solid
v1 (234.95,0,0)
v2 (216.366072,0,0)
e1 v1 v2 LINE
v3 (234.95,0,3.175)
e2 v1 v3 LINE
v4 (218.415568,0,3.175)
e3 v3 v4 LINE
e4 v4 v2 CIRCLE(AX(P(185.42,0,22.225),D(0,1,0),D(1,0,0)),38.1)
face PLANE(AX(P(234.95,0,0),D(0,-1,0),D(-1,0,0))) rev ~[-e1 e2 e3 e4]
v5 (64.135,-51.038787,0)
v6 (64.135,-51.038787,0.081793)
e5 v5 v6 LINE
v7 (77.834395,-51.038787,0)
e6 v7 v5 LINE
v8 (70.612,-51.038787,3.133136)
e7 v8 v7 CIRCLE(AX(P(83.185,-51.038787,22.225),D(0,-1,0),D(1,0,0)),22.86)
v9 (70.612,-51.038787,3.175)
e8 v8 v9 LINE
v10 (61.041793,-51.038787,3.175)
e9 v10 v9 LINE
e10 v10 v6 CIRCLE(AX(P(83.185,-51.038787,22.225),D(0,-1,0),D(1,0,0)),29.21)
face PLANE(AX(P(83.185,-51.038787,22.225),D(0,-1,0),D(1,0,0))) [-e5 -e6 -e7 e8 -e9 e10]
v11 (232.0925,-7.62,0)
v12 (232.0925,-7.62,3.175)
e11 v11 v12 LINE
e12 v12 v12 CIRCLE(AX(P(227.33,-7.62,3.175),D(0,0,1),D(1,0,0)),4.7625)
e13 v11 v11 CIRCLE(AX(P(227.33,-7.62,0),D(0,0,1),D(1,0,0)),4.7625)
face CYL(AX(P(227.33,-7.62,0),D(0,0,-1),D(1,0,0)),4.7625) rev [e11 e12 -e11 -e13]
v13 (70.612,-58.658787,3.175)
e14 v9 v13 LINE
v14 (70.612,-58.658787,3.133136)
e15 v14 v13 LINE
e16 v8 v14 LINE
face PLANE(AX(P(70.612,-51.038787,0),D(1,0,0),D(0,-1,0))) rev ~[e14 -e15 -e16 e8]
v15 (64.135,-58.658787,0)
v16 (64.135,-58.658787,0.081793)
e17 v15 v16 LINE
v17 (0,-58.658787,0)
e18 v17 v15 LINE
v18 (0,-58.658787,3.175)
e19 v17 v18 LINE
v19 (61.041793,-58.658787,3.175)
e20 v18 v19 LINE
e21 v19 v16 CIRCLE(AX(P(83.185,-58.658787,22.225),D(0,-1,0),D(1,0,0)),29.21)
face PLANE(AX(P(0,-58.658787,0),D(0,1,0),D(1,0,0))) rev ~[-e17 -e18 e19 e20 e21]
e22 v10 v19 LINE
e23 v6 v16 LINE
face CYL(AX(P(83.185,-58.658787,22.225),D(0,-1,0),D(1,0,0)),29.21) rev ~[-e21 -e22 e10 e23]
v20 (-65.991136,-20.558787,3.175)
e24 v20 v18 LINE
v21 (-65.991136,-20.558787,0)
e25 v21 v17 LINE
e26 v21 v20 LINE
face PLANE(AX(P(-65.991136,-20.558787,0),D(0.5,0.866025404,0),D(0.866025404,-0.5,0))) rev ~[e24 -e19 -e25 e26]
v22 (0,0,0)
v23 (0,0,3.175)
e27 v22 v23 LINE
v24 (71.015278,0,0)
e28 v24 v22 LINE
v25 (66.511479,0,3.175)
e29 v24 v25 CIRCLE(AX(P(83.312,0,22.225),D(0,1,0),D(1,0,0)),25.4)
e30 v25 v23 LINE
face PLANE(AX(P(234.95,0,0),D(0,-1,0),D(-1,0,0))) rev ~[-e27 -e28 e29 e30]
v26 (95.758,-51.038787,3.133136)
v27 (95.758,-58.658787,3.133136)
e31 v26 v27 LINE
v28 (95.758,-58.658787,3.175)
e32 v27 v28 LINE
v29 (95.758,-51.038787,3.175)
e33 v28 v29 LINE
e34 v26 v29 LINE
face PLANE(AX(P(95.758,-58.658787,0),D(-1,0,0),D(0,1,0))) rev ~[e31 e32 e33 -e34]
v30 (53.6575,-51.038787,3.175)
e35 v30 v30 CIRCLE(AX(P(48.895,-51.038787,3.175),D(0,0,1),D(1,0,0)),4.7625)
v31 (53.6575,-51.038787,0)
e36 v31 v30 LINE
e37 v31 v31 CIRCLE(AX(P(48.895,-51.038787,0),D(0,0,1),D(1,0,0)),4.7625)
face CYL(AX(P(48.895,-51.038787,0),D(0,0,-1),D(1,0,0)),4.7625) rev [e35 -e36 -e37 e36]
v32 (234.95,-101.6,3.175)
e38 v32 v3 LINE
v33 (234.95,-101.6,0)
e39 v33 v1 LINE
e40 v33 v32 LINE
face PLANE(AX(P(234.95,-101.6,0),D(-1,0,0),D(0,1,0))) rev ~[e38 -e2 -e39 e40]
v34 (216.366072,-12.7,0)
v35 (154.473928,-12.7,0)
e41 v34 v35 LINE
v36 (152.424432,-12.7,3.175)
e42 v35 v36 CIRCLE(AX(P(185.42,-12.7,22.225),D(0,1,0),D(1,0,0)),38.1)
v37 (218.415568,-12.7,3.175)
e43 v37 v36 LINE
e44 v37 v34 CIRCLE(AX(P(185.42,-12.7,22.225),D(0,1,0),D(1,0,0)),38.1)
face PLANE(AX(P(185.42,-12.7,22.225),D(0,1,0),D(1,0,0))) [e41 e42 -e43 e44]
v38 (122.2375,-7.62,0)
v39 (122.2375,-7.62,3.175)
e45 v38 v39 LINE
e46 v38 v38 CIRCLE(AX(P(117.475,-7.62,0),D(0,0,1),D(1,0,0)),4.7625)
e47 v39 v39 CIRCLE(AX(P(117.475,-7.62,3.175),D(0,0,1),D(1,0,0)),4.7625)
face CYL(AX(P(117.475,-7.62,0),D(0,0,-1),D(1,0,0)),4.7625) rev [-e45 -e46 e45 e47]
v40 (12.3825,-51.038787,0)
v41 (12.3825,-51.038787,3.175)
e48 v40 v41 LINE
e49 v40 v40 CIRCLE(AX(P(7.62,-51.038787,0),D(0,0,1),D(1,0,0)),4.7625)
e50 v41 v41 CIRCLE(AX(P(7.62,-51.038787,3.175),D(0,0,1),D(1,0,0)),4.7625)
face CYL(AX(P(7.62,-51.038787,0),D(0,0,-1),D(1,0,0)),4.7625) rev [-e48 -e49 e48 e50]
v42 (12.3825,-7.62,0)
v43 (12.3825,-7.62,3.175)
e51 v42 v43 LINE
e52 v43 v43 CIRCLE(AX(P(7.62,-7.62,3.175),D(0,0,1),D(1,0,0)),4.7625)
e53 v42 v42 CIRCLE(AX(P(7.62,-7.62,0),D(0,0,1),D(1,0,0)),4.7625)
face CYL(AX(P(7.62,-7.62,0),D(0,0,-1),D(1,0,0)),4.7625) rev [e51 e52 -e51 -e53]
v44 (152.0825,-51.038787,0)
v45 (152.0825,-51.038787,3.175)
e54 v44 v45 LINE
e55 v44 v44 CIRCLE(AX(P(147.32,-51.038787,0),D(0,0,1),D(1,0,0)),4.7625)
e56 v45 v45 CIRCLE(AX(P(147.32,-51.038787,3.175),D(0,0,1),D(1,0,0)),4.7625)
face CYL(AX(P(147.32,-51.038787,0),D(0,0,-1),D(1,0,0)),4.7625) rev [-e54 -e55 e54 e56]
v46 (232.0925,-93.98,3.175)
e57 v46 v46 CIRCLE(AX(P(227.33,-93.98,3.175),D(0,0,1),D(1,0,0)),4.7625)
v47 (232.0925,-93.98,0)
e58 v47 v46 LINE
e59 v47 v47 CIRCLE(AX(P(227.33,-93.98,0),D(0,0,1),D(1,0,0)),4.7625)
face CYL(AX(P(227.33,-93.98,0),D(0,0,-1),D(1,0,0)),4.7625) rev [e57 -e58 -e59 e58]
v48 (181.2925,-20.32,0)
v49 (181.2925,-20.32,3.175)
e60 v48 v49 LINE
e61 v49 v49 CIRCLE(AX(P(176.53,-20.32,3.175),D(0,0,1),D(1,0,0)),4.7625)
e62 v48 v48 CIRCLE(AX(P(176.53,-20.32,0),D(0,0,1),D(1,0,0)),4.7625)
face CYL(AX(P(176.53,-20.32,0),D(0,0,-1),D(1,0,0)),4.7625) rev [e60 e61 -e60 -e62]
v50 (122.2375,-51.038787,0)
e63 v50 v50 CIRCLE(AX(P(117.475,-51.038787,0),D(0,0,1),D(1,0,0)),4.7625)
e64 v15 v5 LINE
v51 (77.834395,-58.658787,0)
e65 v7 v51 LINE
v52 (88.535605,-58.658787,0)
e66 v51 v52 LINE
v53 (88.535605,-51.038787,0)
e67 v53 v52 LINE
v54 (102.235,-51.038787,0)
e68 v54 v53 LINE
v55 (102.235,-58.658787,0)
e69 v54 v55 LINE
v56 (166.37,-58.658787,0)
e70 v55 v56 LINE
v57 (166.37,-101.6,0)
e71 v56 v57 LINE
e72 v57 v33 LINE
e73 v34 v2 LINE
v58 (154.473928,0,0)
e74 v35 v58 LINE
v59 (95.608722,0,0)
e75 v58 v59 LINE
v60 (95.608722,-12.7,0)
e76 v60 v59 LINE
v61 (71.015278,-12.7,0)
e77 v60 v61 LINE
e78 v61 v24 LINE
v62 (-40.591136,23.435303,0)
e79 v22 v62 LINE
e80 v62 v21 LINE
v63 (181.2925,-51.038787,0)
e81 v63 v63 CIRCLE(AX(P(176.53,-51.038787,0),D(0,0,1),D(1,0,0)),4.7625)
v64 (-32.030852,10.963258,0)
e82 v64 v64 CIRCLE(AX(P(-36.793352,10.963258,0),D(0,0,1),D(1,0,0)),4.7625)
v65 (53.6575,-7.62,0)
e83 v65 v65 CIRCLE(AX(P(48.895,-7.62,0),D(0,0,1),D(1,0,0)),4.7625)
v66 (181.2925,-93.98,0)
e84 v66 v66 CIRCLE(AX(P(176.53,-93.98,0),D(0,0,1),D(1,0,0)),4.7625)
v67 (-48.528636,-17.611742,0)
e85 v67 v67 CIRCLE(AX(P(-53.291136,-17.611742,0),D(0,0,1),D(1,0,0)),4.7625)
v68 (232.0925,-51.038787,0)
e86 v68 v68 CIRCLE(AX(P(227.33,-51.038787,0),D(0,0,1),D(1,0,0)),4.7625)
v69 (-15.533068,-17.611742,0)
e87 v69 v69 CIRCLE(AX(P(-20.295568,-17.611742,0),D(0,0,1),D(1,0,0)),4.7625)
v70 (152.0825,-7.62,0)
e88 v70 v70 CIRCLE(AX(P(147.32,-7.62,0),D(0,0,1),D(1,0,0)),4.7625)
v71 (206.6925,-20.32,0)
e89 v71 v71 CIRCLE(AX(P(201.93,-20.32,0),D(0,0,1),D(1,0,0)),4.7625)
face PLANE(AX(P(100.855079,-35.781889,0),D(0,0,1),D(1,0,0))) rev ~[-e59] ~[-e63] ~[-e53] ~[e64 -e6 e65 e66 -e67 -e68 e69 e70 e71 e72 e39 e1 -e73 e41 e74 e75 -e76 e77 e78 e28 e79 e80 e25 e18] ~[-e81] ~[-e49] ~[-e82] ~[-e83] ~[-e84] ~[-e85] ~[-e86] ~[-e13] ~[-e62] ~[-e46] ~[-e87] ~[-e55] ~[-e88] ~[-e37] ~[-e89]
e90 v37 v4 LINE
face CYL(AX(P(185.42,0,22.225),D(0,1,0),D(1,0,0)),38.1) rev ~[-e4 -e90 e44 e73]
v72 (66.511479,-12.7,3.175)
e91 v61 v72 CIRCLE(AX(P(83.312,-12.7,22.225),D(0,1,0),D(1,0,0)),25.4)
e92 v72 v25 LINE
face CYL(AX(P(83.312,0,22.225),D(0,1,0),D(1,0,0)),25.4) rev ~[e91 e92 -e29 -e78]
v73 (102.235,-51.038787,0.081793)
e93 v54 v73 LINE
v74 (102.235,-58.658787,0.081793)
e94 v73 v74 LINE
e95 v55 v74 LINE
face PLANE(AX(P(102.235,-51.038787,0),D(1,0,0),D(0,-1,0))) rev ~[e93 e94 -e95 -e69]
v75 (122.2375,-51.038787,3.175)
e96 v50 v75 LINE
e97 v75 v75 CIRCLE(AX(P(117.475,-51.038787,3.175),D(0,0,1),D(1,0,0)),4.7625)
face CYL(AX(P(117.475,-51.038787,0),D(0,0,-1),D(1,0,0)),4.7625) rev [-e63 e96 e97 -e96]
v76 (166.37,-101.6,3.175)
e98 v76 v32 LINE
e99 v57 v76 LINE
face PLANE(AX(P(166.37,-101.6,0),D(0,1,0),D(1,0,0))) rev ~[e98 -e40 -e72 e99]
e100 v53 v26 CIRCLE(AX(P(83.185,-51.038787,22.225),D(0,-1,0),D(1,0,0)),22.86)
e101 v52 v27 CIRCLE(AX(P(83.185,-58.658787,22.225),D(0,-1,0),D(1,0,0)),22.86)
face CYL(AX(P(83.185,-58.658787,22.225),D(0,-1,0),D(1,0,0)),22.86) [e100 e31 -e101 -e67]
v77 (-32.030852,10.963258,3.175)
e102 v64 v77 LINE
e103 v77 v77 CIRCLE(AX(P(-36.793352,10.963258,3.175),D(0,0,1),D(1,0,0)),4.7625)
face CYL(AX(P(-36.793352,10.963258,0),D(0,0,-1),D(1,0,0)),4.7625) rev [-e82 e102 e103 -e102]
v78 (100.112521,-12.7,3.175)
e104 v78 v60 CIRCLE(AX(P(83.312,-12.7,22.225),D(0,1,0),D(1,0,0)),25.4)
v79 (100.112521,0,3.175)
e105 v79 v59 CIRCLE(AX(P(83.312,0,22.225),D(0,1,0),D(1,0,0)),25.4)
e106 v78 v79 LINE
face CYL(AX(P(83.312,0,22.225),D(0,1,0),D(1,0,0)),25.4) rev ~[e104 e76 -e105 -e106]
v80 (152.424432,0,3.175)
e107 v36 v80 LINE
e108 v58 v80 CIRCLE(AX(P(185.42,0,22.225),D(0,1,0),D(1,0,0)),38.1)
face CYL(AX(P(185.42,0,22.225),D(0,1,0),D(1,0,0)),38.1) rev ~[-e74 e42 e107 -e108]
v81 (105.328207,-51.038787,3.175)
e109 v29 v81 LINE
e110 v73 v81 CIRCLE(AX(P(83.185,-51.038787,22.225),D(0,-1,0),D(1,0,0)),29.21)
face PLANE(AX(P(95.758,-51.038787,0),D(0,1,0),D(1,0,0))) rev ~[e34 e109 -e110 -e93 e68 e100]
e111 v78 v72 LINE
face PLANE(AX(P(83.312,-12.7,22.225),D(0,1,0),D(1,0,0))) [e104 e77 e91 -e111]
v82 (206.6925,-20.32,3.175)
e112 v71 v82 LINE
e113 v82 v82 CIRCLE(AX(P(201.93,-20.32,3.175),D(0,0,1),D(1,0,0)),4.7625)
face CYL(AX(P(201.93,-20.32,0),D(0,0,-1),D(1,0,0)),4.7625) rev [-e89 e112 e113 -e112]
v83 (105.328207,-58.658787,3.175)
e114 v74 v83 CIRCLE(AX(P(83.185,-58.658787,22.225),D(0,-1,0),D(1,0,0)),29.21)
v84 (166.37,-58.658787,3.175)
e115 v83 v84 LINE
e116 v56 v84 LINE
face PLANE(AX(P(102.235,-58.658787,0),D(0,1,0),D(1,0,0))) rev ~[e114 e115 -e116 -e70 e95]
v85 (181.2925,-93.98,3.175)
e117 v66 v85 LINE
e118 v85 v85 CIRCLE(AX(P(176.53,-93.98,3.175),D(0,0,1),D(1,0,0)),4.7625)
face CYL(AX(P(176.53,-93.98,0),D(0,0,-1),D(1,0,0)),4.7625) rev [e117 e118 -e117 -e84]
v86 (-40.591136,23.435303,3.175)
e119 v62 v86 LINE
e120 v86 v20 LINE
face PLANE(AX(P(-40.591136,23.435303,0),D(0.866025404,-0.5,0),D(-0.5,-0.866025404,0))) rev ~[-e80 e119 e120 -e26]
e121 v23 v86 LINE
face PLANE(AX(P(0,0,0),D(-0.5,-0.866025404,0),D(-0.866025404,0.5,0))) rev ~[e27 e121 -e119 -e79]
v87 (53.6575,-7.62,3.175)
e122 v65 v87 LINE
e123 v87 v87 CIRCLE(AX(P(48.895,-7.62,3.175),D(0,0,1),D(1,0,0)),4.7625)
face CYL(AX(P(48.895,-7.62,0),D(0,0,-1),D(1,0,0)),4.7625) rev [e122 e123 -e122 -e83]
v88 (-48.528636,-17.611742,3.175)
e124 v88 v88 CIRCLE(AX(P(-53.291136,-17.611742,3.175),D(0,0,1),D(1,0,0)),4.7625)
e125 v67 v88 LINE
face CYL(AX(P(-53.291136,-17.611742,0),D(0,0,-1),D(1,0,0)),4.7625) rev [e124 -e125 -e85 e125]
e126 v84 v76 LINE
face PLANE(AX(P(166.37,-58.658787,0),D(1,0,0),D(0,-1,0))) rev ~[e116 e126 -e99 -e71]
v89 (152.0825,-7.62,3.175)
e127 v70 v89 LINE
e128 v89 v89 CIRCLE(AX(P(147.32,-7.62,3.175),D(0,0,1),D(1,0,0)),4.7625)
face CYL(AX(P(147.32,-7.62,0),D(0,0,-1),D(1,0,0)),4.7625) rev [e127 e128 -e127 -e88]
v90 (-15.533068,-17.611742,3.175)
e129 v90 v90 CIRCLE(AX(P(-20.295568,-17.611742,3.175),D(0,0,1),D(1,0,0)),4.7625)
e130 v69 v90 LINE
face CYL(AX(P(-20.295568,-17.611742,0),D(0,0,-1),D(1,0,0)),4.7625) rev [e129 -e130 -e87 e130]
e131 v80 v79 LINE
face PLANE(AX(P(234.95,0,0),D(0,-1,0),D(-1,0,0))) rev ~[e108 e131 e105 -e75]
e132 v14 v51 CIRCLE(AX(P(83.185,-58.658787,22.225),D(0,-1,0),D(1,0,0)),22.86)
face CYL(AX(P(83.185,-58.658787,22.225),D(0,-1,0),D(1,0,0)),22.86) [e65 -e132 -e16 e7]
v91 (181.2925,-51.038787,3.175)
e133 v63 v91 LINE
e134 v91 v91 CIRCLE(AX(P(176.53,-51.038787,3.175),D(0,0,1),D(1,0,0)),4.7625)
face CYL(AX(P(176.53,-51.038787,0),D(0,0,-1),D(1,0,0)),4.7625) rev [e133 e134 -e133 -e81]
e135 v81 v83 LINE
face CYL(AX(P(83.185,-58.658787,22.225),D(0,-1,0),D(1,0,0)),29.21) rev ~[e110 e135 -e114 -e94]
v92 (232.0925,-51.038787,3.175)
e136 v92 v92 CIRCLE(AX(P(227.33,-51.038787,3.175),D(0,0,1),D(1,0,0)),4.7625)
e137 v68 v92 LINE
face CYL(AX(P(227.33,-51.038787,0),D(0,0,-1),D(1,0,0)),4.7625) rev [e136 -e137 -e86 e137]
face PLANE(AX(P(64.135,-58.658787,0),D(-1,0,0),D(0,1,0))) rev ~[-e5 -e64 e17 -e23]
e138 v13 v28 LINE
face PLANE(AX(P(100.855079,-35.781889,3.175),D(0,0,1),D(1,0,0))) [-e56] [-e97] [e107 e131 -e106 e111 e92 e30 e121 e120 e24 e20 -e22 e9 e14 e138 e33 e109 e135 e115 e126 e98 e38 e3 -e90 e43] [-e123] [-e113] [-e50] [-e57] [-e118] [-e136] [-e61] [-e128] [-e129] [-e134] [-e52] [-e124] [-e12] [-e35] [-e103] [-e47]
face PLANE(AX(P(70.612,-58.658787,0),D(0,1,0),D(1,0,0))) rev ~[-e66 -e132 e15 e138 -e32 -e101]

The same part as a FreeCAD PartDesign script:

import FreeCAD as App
import Part
import Sketcher
from FreeCAD import Vector
Q = App.Units.Quantity

doc = App.newDocument("Part")
body = doc.addObject("PartDesign::Body", "Body")

sketch1 = body.newObject("Sketcher::SketchObject", "Sketch")
sketch1.AttachmentSupport = (doc.getObject("XY_Plane"), [""])
sketch1.MapMode = "FlatFace"
sketch1.addGeometry([
    Part.LineSegment(Vector(0, 0, 0), Vector(-40.6, 23.4, 0)),
    Part.LineSegment(Vector(-40.6, 23.4, 0), Vector(-66, -20.6, 0)),
    Part.LineSegment(Vector(-66, -20.6, 0), Vector(0, -58.7, 0)),
    Part.LineSegment(Vector(0, -58.7, 0), Vector(64.1, -58.7, 0)),
    Part.LineSegment(Vector(64.1, -58.7, 0), Vector(64.1, -51, 0)),
    Part.LineSegment(Vector(64.1, -51, 0), Vector(70.6, -51, 0)),
    Part.LineSegment(Vector(70.6, -51, 0), Vector(70.6, -58.7, 0)),
    Part.LineSegment(Vector(70.6, -58.7, 0), Vector(95.8, -58.7, 0)),
    Part.LineSegment(Vector(95.8, -58.7, 0), Vector(95.8, -51, 0)),
    Part.LineSegment(Vector(95.8, -51, 0), Vector(102.2, -51, 0)),
    Part.LineSegment(Vector(102.2, -51, 0), Vector(102.2, -58.7, 0)),
    Part.LineSegment(Vector(102.2, -58.7, 0), Vector(166.4, -58.7, 0)),
    Part.LineSegment(Vector(166.4, -58.7, 0), Vector(166.4, -101.6, 0)),
    Part.LineSegment(Vector(166.4, -101.6, 0), Vector(234.9, -101.6, 0)),
    Part.LineSegment(Vector(234.9, -101.6, 0), Vector(234.9, 0, 0)),
    Part.LineSegment(Vector(234.9, 0, 0), Vector(0, 0, 0)),
    Part.Circle(Vector(7.6, -51, 0), Vector(0, 0, 1), 4.8),
    Part.Circle(Vector(48.9, -51, 0), Vector(0, 0, 1), 4.8),
    Part.Circle(Vector(176.5, -94, 0), Vector(0, 0, 1), 4.8),
    Part.Circle(Vector(227.3, -94, 0), Vector(0, 0, 1), 4.8),
    Part.Circle(Vector(117.5, -51, 0), Vector(0, 0, 1), 4.8),
    Part.Circle(Vector(147.3, -51, 0), Vector(0, 0, 1), 4.8),
    Part.Circle(Vector(176.5, -51, 0), Vector(0, 0, 1), 4.8),
    Part.Circle(Vector(227.3, -51, 0), Vector(0, 0, 1), 4.8),
    Part.Circle(Vector(-53.3, -17.6, 0), Vector(0, 0, 1), 4.8),
    Part.Circle(Vector(-20.3, -17.6, 0), Vector(0, 0, 1), 4.8),
    Part.Circle(Vector(7.6, -7.6, 0), Vector(0, 0, 1), 4.8),
    Part.Circle(Vector(-36.8, 11, 0), Vector(0, 0, 1), 4.8),
    Part.Circle(Vector(48.9, -7.6, 0), Vector(0, 0, 1), 4.8),
    Part.Circle(Vector(176.5, -20.3, 0), Vector(0, 0, 1), 4.8),
    Part.Circle(Vector(201.9, -20.3, 0), Vector(0, 0, 1), 4.8),
    Part.Circle(Vector(117.5, -7.6, 0), Vector(0, 0, 1), 4.8),
    Part.Circle(Vector(147.3, -7.6, 0), Vector(0, 0, 1), 4.8),
    Part.Circle(Vector(227.3, -7.6, 0), Vector(0, 0, 1), 4.8),
], False)
sketch1.addConstraint([
    Sketcher.Constraint("Coincident", 0, 2, 1, 1),
    Sketcher.Constraint("Coincident", 1, 2, 2, 1),
    Sketcher.Constraint("Coincident", 2, 2, 3, 1),
    Sketcher.Constraint("Coincident", 3, 2, 4, 1),
    Sketcher.Constraint("Coincident", 4, 2, 5, 1),
    Sketcher.Constraint("Coincident", 5, 2, 6, 1),
    Sketcher.Constraint("Coincident", 6, 2, 7, 1),
    Sketcher.Constraint("Coincident", 7, 2, 8, 1),
    Sketcher.Constraint("Coincident", 8, 2, 9, 1),
    Sketcher.Constraint("Coincident", 9, 2, 10, 1),
    Sketcher.Constraint("Coincident", 10, 2, 11, 1),
    Sketcher.Constraint("Coincident", 11, 2, 12, 1),
    Sketcher.Constraint("Coincident", 12, 2, 13, 1),
    Sketcher.Constraint("Coincident", 13, 2, 14, 1),
    Sketcher.Constraint("Coincident", 14, 2, 15, 1),
    Sketcher.Constraint("Coincident", 15, 2, 0, 1),
    Sketcher.Constraint("Horizontal", 3),
    Sketcher.Constraint("Vertical", 4),
    Sketcher.Constraint("Horizontal", 5),
    Sketcher.Constraint("Vertical", 6),
    Sketcher.Constraint("Horizontal", 7),
    Sketcher.Constraint("Vertical", 8),
    Sketcher.Constraint("Horizontal", 9),
    Sketcher.Constraint("Vertical", 10),
    Sketcher.Constraint("Horizontal", 11),
    Sketcher.Constraint("Vertical", 12),
    Sketcher.Constraint("Horizontal", 13),
    Sketcher.Constraint("Vertical", 14),
    Sketcher.Constraint("Horizontal", 15),
    Sketcher.Constraint("Coincident", 15, 2, -1, 1),
    Sketcher.Constraint("Equal", 16, 17),
    Sketcher.Constraint("Equal", 17, 18),
    Sketcher.Constraint("Equal", 18, 19),
    Sketcher.Constraint("Equal", 19, 20),
    Sketcher.Constraint("Equal", 20, 21),
    Sketcher.Constraint("Equal", 21, 22),
    Sketcher.Constraint("Equal", 22, 23),
    Sketcher.Constraint("Equal", 23, 24),
    Sketcher.Constraint("Equal", 24, 25),
    Sketcher.Constraint("Equal", 25, 26),
    Sketcher.Constraint("Equal", 26, 27),
    Sketcher.Constraint("Equal", 27, 28),
    Sketcher.Constraint("Equal", 28, 29),
    Sketcher.Constraint("Equal", 29, 30),
    Sketcher.Constraint("Equal", 30, 31),
    Sketcher.Constraint("Equal", 31, 32),
    Sketcher.Constraint("Equal", 32, 33),
    Sketcher.Constraint("PointOnObject", 2, 2, -2),
    Sketcher.Constraint("Perpendicular", 0, 1),
    Sketcher.Constraint("Perpendicular", 1, 2),
    Sketcher.Constraint("Horizontal", 16, 3, 17, 3),
    Sketcher.Constraint("Horizontal", 18, 3, 19, 3),
    Sketcher.Constraint("Horizontal", 17, 3, 20, 3),
    Sketcher.Constraint("Horizontal", 20, 3, 21, 3),
    Sketcher.Constraint("Horizontal", 21, 3, 22, 3),
    Sketcher.Constraint("Horizontal", 22, 3, 23, 3),
    Sketcher.Constraint("Horizontal", 24, 3, 25, 3),
    Sketcher.Constraint("Horizontal", 26, 3, 28, 3),
    Sketcher.Constraint("Horizontal", 29, 3, 30, 3),
    Sketcher.Constraint("Horizontal", 28, 3, 31, 3),
    Sketcher.Constraint("Horizontal", 31, 3, 32, 3),
    Sketcher.Constraint("Horizontal", 32, 3, 33, 3),
    Sketcher.Constraint("Horizontal", 23, 3, 4, 2),
    Sketcher.Constraint("Horizontal", 3, 2, 6, 2),
    Sketcher.Constraint("Horizontal", 5, 2, 8, 2),
    Sketcher.Constraint("Horizontal", 7, 2, 10, 2),
    Sketcher.Constraint("Vertical", 18, 3, 22, 3),
    Sketcher.Constraint("Vertical", 19, 3, 23, 3),
    Sketcher.Constraint("Vertical", 16, 3, 26, 3),
    Sketcher.Constraint("Vertical", 17, 3, 28, 3),
    Sketcher.Constraint("Vertical", 22, 3, 29, 3),
    Sketcher.Constraint("Vertical", 20, 3, 31, 3),
    Sketcher.Constraint("Vertical", 21, 3, 32, 3),
    Sketcher.Constraint("Vertical", 23, 3, 33, 3),
    Sketcher.Constraint("Equal", 5, 9),
    Sketcher.Constraint("Equal", 3, 11),
    Sketcher.Constraint("DistanceY", 14, 1, 14, 2, Q("4 in")),
    Sketcher.Constraint("Distance", 1, Q("2 in")),
    Sketcher.Constraint("Distance", 2, Q("3 in")),
    Sketcher.Constraint("Diameter", 16, Q("0.375 in")),
    Sketcher.Constraint("DistanceX", 13, 1, 13, 2, Q("2.7 in")),
    Sketcher.Constraint("DistanceY", 4, 1, 4, 2, Q("0.3 in")),
    Sketcher.Constraint("Angle", 0, Q("150 deg")),
    Sketcher.Constraint("DistanceX", 18, 3, 19, 3, Q("2 in")),
    Sketcher.Constraint("DistanceX", 29, 3, 30, 3, Q("1 in")),
    Sketcher.Constraint("DistanceX", 7, 1, 7, 2, Q("0.99 in")),
    Sketcher.Constraint("DistanceX", 15, 2, 15, 1, Q("9.25 in")),
    Sketcher.Constraint("DistanceX", -1, 1, 16, 3, Q("0.3 in")),
    Sketcher.Constraint("DistanceY", 18, 3, -1, 1, Q("3.7 in")),
    Sketcher.Constraint("DistanceX", -1, 1, 21, 3, Q("5.8 in")),
    Sketcher.Constraint("DistanceY", 26, 3, -1, 1, Q("0.3 in")),
    Sketcher.Constraint("DistanceY", 29, 3, -1, 1, Q("0.8 in")),
    Sketcher.Constraint("DistanceX", 17, 3, 20, 3, Q("2.7 in")),
    Sketcher.Constraint("DistanceX", 24, 3, 0, 2, Q("0.5 in")),
    Sketcher.Constraint("DistanceX", 17, 3, 3, 2, Q("0.6 in")),
    Sketcher.Constraint("DistanceX", 9, 2, 20, 3, Q("0.6 in")),
    Sketcher.Constraint("DistanceX", 11, 2, 22, 3, Q("0.4 in")),
    Sketcher.Constraint("DistanceY", 24, 3, 27, 3, Q("1.125 in")),
    Sketcher.Constraint("DistanceX", 27, 3, -1, 1, Q("36.793352 mm")),
    Sketcher.Constraint("DistanceY", 24, 3, -1, 1, Q("17.611742 mm")),
    Sketcher.Constraint("DistanceX", 25, 3, -1, 1, Q("20.295568 mm")),
])
pad1 = body.newObject("PartDesign::Pad", "Pad")
pad1.Profile = sketch1
pad1.Length = Q("0.125 in")

sketch2 = body.newObject("Sketcher::SketchObject", "Sketch001")
sketch2.AttachmentSupport = (doc.getObject("XZ_Plane"), [""])
sketch2.MapMode = "FlatFace"
sketch2.AttachmentOffset = App.Placement(Vector(0, 0, 58.658787), App.Rotation())
sketch2.addGeometry([
    Part.Circle(Vector(83, 22, 0), Vector(0, 0, 1), 29),
    Part.Circle(Vector(83, 22, 0), Vector(0, 0, 1), 23),
], False)
sketch2.addConstraint([
    Sketcher.Constraint("Coincident", 1, 3, 0, 3),
    Sketcher.Constraint("Diameter", 0, Q("2.3 in")),
    Sketcher.Constraint("Diameter", 1, Q("1.8 in")),
    Sketcher.Constraint("DistanceX", -1, 1, 0, 3, Q("3.275 in")),
    Sketcher.Constraint("DistanceY", -1, 1, 0, 3, Q("0.875 in")),
])
pocket1 = body.newObject("PartDesign::Pocket", "Pocket")
pocket1.Profile = sketch2
pocket1.Length = Q("0.3 in")

sketch3 = body.newObject("Sketcher::SketchObject", "Sketch002")
sketch3.AttachmentSupport = (doc.getObject("XZ_Plane"), [""])
sketch3.MapMode = "FlatFace"
sketch3.addGeometry([
    Part.Circle(Vector(185, 22, 0), Vector(0, 0, 1), 38),
    Part.Circle(Vector(83, 22, 0), Vector(0, 0, 1), 25),
], False)
sketch3.addConstraint([
    Sketcher.Constraint("Horizontal", 0, 3, 1, 3),
    Sketcher.Constraint("Diameter", 0, Q("3 in")),
    Sketcher.Constraint("Diameter", 1, Q("2 in")),
    Sketcher.Constraint("DistanceX", -1, 1, 0, 3, Q("7.3 in")),
    Sketcher.Constraint("DistanceX", -1, 1, 1, 3, Q("3.28 in")),
    Sketcher.Constraint("DistanceY", -1, 1, 0, 3, Q("0.875 in")),
])
pocket2 = body.newObject("PartDesign::Pocket", "Pocket001")
pocket2.Profile = sketch3
pocket2.Length = Q("0.5 in")
pocket2.Reversed = True

doc.recompute()
